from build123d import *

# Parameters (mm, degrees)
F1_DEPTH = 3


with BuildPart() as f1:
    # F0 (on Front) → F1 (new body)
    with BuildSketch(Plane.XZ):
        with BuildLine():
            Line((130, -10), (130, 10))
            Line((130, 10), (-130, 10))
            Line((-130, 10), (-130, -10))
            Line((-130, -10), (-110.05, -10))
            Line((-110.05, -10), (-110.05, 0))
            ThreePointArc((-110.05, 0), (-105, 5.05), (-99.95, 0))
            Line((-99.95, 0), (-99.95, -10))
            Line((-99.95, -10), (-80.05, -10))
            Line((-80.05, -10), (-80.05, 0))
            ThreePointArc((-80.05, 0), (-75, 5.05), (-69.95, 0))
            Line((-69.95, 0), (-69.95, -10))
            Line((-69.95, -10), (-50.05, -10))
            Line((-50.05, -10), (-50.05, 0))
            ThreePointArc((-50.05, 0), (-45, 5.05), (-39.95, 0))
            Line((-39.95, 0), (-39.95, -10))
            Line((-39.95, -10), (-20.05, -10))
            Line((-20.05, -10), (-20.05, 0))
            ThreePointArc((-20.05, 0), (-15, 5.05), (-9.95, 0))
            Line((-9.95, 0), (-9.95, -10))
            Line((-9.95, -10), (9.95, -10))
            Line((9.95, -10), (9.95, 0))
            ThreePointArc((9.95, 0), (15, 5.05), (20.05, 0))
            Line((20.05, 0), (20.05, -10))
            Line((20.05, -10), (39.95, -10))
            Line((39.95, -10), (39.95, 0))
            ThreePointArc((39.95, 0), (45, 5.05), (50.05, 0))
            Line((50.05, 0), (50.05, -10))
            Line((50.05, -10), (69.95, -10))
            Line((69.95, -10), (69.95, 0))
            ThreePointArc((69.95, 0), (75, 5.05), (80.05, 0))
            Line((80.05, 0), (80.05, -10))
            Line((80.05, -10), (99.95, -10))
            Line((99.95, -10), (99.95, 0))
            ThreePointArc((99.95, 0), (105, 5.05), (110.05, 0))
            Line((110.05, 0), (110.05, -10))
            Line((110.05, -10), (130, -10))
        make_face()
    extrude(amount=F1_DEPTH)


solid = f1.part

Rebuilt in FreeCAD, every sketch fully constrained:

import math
import FreeCAD as App
import Part
import Sketcher
from FreeCAD import Vector

doc = App.newDocument("Part")
body = doc.addObject("PartDesign::Body", "Body")

# Sketch on XZ plane
sketch1 = body.newObject("Sketcher::SketchObject", "Sketch")
sketch1.AttachmentSupport = (doc.getObject("XZ_Plane"), [""])
sketch1.MapMode = "FlatFace"
sketch1.addGeometry([
    Part.LineSegment(Vector(130, -10, 0), Vector(130, 10, 0)),  # 0
    Part.LineSegment(Vector(130, 10, 0), Vector(-130, 10, 0)),  # 1
    Part.LineSegment(Vector(-130, 10, 0), Vector(-130, -10, 0)),  # 2
    Part.LineSegment(Vector(-130, -10, 0), Vector(-110, -10, 0)),  # 3
    Part.LineSegment(Vector(-110, -10, 0), Vector(-110, 0, 0)),  # 4
    Part.ArcOfCircle(Part.Circle(Vector(-105, 0, 0), Vector(0, 0, 1), 5), math.radians(0), math.radians(180)),  # 5
    Part.LineSegment(Vector(-100, 0, 0), Vector(-100, -10, 0)),  # 6
    Part.LineSegment(Vector(-100, -10, 0), Vector(-80, -10, 0)),  # 7
    Part.LineSegment(Vector(-80, -10, 0), Vector(-80, 0, 0)),  # 8
    Part.ArcOfCircle(Part.Circle(Vector(-75, 0, 0), Vector(0, 0, 1), 5), math.radians(0), math.radians(180)),  # 9
    Part.LineSegment(Vector(-70, 0, 0), Vector(-70, -10, 0)),  # 10
    Part.LineSegment(Vector(-70, -10, 0), Vector(-50, -10, 0)),  # 11
    Part.LineSegment(Vector(-50, -10, 0), Vector(-50, 0, 0)),  # 12
    Part.ArcOfCircle(Part.Circle(Vector(-45, 0, 0), Vector(0, 0, 1), 5), math.radians(0), math.radians(180)),  # 13
    Part.LineSegment(Vector(-40, 0, 0), Vector(-40, -10, 0)),  # 14
    Part.LineSegment(Vector(-40, -10, 0), Vector(-20, -10, 0)),  # 15
    Part.LineSegment(Vector(-20, -10, 0), Vector(-20, 0, 0)),  # 16
    Part.ArcOfCircle(Part.Circle(Vector(-15, 0, 0), Vector(0, 0, 1), 5), math.radians(0), math.radians(180)),  # 17
    Part.LineSegment(Vector(-10, 0, 0), Vector(-10, -10, 0)),  # 18
    Part.LineSegment(Vector(-10, -10, 0), Vector(10, -10, 0)),  # 19
    Part.LineSegment(Vector(10, -10, 0), Vector(10, 0, 0)),  # 20
    Part.ArcOfCircle(Part.Circle(Vector(15, 0, 0), Vector(0, 0, 1), 5), math.radians(0), math.radians(180)),  # 21
    Part.LineSegment(Vector(20, 0, 0), Vector(20, -10, 0)),  # 22
    Part.LineSegment(Vector(20, -10, 0), Vector(40, -10, 0)),  # 23
    Part.LineSegment(Vector(40, -10, 0), Vector(40, 0, 0)),  # 24
    Part.ArcOfCircle(Part.Circle(Vector(45, 0, 0), Vector(0, 0, 1), 5), math.radians(0), math.radians(180)),  # 25
    Part.LineSegment(Vector(50, 0, 0), Vector(50, -10, 0)),  # 26
    Part.LineSegment(Vector(50, -10, 0), Vector(70, -10, 0)),  # 27
    Part.LineSegment(Vector(70, -10, 0), Vector(70, 0, 0)),  # 28
    Part.ArcOfCircle(Part.Circle(Vector(75, 0, 0), Vector(0, 0, 1), 5), math.radians(0), math.radians(180)),  # 29
    Part.LineSegment(Vector(80, 0, 0), Vector(80, -10, 0)),  # 30
    Part.LineSegment(Vector(80, -10, 0), Vector(100, -10, 0)),  # 31
    Part.LineSegment(Vector(100, -10, 0), Vector(100, 0, 0)),  # 32
    Part.ArcOfCircle(Part.Circle(Vector(105, 0, 0), Vector(0, 0, 1), 5), math.radians(0), math.radians(180)),  # 33
    Part.LineSegment(Vector(110, 0, 0), Vector(110, -10, 0)),  # 34
    Part.LineSegment(Vector(110, -10, 0), Vector(130, -10, 0)),  # 35
], False)
sketch1.addConstraint([
    Sketcher.Constraint("Coincident", 0, 2, 1, 1),
    Sketcher.Constraint("Coincident", 1, 2, 2, 1),
    Sketcher.Constraint("Coincident", 2, 2, 3, 1),
    Sketcher.Constraint("Coincident", 3, 2, 4, 1),
    Sketcher.Constraint("Tangent", 4, 2, 5, 2),
    Sketcher.Constraint("Tangent", 5, 1, 6, 1),
    Sketcher.Constraint("Coincident", 6, 2, 7, 1),
    Sketcher.Constraint("Coincident", 7, 2, 8, 1),
    Sketcher.Constraint("Tangent", 8, 2, 9, 2),
    Sketcher.Constraint("Tangent", 9, 1, 10, 1),
    Sketcher.Constraint("Coincident", 10, 2, 11, 1),
    Sketcher.Constraint("Coincident", 11, 2, 12, 1),
    Sketcher.Constraint("Tangent", 12, 2, 13, 2),
    Sketcher.Constraint("Tangent", 13, 1, 14, 1),
    Sketcher.Constraint("Coincident", 14, 2, 15, 1),
    Sketcher.Constraint("Coincident", 15, 2, 16, 1),
    Sketcher.Constraint("Tangent", 16, 2, 17, 2),
    Sketcher.Constraint("Tangent", 17, 1, 18, 1),
    Sketcher.Constraint("Coincident", 18, 2, 19, 1),
    Sketcher.Constraint("Coincident", 19, 2, 20, 1),
    Sketcher.Constraint("Tangent", 20, 2, 21, 2),
    Sketcher.Constraint("Tangent", 21, 1, 22, 1),
    Sketcher.Constraint("Coincident", 22, 2, 23, 1),
    Sketcher.Constraint("Coincident", 23, 2, 24, 1),
    Sketcher.Constraint("Tangent", 24, 2, 25, 2),
    Sketcher.Constraint("Tangent", 25, 1, 26, 1),
    Sketcher.Constraint("Coincident", 26, 2, 27, 1),
    Sketcher.Constraint("Coincident", 27, 2, 28, 1),
    Sketcher.Constraint("Tangent", 28, 2, 29, 2),
    Sketcher.Constraint("Tangent", 29, 1, 30, 1),
    Sketcher.Constraint("Coincident", 30, 2, 31, 1),
    Sketcher.Constraint("Coincident", 31, 2, 32, 1),
    Sketcher.Constraint("Tangent", 32, 2, 33, 2),
    Sketcher.Constraint("Tangent", 33, 1, 34, 1),
    Sketcher.Constraint("Coincident", 34, 2, 35, 1),
    Sketcher.Constraint("Coincident", 35, 2, 0, 1),
    Sketcher.Constraint("Vertical", 0),
    Sketcher.Constraint("Horizontal", 1),
    Sketcher.Constraint("Vertical", 2),
    Sketcher.Constraint("Horizontal", 3),
    Sketcher.Constraint("Vertical", 4),
    Sketcher.Constraint("Vertical", 6),
    Sketcher.Constraint("Horizontal", 7),
    Sketcher.Constraint("Vertical", 8),
    Sketcher.Constraint("Vertical", 10),
    Sketcher.Constraint("Horizontal", 11),
    Sketcher.Constraint("Vertical", 12),
    Sketcher.Constraint("Vertical", 14),
    Sketcher.Constraint("Horizontal", 15),
    Sketcher.Constraint("Vertical", 16),
    Sketcher.Constraint("Vertical", 18),
    Sketcher.Constraint("Horizontal", 19),
    Sketcher.Constraint("Vertical", 20),
    Sketcher.Constraint("Vertical", 22),
    Sketcher.Constraint("Horizontal", 23),
    Sketcher.Constraint("Vertical", 24),
    Sketcher.Constraint("Vertical", 26),
    Sketcher.Constraint("Horizontal", 27),
    Sketcher.Constraint("Vertical", 28),
    Sketcher.Constraint("Vertical", 30),
    Sketcher.Constraint("Horizontal", 31),
    Sketcher.Constraint("Vertical", 32),
    Sketcher.Constraint("Vertical", 34),
    Sketcher.Constraint("Horizontal", 35),
    Sketcher.Constraint("Equal", 5, 9),
    Sketcher.Constraint("Equal", 9, 13),
    Sketcher.Constraint("Equal", 13, 17),
    Sketcher.Constraint("Equal", 17, 21),
    Sketcher.Constraint("Equal", 21, 25),
    Sketcher.Constraint("Equal", 25, 29),
    Sketcher.Constraint("Equal", 29, 33),
    Sketcher.Constraint("Symmetric", 17, 3, 21, 3, -1, 1),
    Sketcher.Constraint("Symmetric", 13, 3, 25, 3, -1, 1),
    Sketcher.Constraint("Symmetric", 9, 3, 29, 3, -1, 1),
    Sketcher.Constraint("Symmetric", 5, 3, 33, 3, -1, 1),
    Sketcher.Constraint("Symmetric", 0, 2, 2, 2, -1, 1),
    Sketcher.Constraint("PointOnObject", 5, 3, -1),
    Sketcher.Constraint("PointOnObject", 9, 3, -1),
    Sketcher.Constraint("PointOnObject", 13, 3, -1),
    Sketcher.Constraint("PointOnObject", 17, 3, -1),
    Sketcher.Constraint("Horizontal", 3, 2, 6, 2),
    Sketcher.Constraint("Horizontal", 7, 2, 10, 2),
    Sketcher.Constraint("Horizontal", 11, 2, 14, 2),
    Sketcher.Constraint("Horizontal", 15, 2, 18, 2),
    Sketcher.Constraint("Horizontal", 19, 2, 22, 2),
    Sketcher.Constraint("Horizontal", 23, 2, 26, 2),
    Sketcher.Constraint("Horizontal", 27, 2, 30, 2),
    Sketcher.Constraint("Horizontal", 31, 2, 34, 2),
    Sketcher.Constraint("Equal", 7, 11),
    Sketcher.Constraint("Equal", 11, 15),
    Sketcher.Constraint("Equal", 15, 19),
    Sketcher.Constraint("DistanceX", 1, 2, 1, 1, 260.0),
    Sketcher.Constraint("DistanceY", 0, 1, 0, 2, 20.0),
    Sketcher.Constraint("Radius", 5, 5.05),
    Sketcher.Constraint("DistanceX", 7, 1, 7, 2, 19.9),
])
pad1 = body.newObject("PartDesign::Pad", "Pad")
pad1.Profile = sketch1
pad1.Length = 3

doc.recompute()
